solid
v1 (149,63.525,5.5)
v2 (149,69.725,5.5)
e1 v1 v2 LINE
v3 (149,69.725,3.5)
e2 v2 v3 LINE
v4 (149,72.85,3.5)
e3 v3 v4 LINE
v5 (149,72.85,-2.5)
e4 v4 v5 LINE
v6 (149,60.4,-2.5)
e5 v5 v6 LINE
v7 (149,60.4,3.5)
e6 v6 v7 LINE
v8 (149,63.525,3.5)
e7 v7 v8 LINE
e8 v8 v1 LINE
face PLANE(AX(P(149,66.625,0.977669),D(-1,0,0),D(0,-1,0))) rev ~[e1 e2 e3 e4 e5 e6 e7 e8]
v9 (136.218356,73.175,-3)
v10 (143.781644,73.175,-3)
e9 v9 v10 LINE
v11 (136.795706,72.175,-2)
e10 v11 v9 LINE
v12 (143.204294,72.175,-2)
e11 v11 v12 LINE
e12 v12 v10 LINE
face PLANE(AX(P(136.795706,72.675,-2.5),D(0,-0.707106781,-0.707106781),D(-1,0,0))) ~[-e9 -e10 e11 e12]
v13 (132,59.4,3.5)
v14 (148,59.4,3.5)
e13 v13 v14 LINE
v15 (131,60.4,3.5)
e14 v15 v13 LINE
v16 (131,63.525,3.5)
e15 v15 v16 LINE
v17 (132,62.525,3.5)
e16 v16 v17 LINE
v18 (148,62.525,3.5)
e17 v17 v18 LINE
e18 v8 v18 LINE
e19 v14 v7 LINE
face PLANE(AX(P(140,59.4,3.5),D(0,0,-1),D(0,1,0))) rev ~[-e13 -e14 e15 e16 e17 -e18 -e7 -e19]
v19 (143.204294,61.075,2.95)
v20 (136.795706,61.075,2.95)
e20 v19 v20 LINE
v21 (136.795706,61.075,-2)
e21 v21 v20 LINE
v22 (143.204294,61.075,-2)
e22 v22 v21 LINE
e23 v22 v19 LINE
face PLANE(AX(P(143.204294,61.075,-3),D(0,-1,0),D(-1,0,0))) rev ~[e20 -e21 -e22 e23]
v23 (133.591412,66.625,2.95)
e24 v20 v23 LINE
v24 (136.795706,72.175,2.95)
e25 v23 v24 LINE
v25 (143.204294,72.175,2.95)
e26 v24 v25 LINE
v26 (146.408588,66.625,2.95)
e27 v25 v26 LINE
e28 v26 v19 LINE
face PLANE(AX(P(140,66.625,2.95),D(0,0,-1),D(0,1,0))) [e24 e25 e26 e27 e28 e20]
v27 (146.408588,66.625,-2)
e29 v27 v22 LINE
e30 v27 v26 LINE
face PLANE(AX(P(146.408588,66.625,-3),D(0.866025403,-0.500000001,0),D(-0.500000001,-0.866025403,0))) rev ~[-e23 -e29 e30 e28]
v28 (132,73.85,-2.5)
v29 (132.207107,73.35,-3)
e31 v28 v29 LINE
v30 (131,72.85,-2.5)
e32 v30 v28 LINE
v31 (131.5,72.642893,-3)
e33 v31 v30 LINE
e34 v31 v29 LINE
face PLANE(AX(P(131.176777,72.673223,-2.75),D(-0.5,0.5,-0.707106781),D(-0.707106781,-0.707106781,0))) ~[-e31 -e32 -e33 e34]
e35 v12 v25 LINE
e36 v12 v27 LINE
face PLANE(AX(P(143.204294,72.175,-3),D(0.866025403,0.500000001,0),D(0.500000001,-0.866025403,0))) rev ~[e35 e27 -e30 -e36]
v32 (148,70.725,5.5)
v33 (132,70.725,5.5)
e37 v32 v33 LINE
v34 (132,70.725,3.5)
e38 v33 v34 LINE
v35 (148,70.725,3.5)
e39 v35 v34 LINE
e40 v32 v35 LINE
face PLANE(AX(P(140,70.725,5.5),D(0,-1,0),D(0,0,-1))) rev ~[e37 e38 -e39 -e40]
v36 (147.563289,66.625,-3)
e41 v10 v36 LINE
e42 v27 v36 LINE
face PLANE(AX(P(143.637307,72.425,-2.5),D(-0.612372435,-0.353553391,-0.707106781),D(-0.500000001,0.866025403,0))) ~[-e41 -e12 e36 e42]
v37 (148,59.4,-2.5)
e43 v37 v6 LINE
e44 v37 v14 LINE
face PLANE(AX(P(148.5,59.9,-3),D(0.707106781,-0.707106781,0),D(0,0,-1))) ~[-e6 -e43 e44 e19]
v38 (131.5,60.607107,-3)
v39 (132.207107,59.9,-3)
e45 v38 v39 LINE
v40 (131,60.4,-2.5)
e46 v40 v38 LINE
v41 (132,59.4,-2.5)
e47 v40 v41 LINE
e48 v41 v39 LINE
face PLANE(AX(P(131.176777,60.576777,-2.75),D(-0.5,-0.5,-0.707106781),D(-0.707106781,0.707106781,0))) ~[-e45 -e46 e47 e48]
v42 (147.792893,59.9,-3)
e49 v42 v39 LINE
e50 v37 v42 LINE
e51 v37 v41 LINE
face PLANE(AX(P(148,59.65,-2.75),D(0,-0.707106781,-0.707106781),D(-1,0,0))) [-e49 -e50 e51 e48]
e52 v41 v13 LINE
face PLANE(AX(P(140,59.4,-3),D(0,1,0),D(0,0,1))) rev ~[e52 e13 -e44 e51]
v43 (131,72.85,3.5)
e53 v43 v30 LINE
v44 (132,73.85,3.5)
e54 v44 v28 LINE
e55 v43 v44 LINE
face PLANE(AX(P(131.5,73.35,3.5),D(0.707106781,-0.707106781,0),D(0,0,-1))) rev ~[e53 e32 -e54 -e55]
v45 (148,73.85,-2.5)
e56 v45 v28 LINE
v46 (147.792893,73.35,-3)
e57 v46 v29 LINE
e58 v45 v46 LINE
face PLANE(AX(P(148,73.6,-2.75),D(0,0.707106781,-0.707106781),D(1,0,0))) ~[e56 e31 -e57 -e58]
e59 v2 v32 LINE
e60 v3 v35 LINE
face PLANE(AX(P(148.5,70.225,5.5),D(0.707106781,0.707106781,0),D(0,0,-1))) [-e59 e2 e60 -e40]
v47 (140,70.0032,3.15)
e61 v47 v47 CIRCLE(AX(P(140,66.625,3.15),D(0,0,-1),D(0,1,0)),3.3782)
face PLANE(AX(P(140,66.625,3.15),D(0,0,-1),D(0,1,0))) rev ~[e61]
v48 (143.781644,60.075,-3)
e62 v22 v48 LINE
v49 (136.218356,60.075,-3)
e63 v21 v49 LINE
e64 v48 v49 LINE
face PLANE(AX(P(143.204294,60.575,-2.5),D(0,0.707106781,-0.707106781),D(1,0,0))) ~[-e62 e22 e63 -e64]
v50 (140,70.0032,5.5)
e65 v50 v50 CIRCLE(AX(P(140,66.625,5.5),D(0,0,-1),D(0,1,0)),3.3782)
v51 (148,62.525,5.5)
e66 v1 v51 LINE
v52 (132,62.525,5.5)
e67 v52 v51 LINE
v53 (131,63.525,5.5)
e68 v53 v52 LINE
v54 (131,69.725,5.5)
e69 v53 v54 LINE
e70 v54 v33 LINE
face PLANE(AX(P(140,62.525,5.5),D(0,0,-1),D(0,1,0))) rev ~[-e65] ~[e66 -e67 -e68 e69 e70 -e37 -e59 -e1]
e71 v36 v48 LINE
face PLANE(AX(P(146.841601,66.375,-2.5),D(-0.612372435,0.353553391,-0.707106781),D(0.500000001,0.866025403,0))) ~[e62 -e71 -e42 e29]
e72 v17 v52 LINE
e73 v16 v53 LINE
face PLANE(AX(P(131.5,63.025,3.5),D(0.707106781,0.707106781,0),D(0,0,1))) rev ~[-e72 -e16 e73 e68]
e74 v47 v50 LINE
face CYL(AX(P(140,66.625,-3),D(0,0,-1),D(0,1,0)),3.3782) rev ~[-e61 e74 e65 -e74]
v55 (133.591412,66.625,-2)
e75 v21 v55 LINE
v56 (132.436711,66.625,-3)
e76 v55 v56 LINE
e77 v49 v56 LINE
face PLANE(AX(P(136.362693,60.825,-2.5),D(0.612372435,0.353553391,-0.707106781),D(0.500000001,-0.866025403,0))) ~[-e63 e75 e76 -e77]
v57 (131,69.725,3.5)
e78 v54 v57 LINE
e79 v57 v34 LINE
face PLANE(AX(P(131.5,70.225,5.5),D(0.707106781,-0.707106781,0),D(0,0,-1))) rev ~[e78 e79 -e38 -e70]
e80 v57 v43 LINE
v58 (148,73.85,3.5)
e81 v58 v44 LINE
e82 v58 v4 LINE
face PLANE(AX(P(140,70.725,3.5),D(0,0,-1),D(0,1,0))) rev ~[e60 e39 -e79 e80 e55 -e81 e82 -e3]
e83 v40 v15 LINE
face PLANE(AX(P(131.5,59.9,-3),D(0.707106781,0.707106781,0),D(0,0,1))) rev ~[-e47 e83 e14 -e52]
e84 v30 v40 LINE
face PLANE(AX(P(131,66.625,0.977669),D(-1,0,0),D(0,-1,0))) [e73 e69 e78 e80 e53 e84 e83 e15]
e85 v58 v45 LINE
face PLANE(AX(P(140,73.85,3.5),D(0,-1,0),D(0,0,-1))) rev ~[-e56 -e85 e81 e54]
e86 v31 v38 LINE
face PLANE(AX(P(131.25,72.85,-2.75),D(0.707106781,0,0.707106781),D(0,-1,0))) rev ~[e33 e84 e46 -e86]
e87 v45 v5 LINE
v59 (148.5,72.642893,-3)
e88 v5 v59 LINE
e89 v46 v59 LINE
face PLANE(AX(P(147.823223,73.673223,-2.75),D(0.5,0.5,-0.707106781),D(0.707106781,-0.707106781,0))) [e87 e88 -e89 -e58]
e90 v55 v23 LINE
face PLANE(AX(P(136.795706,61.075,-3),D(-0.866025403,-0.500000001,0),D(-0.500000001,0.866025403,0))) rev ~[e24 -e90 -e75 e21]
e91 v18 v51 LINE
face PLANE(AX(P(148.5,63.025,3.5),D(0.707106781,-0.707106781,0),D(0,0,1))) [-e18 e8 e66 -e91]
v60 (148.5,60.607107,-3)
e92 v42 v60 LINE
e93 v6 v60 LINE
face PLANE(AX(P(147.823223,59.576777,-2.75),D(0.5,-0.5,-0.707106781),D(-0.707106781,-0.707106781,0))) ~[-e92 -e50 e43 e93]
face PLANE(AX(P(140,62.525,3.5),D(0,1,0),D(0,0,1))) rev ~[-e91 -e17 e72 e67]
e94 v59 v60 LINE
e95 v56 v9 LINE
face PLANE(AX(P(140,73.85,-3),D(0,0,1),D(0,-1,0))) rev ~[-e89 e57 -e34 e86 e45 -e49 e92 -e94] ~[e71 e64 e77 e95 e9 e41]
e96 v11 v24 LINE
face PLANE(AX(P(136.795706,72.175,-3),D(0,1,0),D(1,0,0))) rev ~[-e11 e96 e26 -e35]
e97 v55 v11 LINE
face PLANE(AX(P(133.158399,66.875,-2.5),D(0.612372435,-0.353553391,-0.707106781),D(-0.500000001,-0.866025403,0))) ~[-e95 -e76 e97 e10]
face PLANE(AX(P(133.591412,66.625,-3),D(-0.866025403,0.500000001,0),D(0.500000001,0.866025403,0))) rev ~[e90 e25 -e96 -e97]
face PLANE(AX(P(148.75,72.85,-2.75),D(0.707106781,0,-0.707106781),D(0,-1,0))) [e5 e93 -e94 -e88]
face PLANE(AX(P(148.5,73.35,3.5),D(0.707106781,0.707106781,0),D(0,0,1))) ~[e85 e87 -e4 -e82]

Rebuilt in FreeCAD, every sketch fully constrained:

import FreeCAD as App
import Part
import Sketcher
Q = App.Units.Quantity


def edges_at(feature, points):
    """Names of the edges that pass closest to the given points."""
    edges = feature.Shape.Edges
    near = lambda p: min(range(len(edges)), key=lambda i: edges[i].distToShape(Part.Vertex(*p))[0])
    return sorted({f"Edge{near(p) + 1}" for p in points})

doc = App.newDocument("Part")
body = doc.addObject("PartDesign::Body", "Body")

sketch1 = body.newObject("Sketcher::SketchObject", "Sketch")
sketch1.AttachmentSupport = (doc.getObject("YZ_Plane"), [""])
sketch1.MapMode = "FlatFace"
sketch1.AttachmentOffset = App.Placement(App.Vector(0, 0, 140), App.Rotation())
sketch1.addGeometry(Part.LineSegment(App.Vector(70.7, 5.5, 0), App.Vector(62.5, 5.5, 0)), False)
sketch1.addGeometry(Part.LineSegment(App.Vector(62.5, 5.5, 0), App.Vector(62.5, 3.5, 0)), False)
sketch1.addGeometry(Part.LineSegment(App.Vector(62.5, 3.5, 0), App.Vector(59.4, 3.5, 0)), False)
sketch1.addGeometry(Part.LineSegment(App.Vector(59.4, 3.5, 0), App.Vector(59.4, -3, 0)), False)
sketch1.addGeometry(Part.LineSegment(App.Vector(59.4, -3, 0), App.Vector(73.8, -3, 0)), False)
sketch1.addGeometry(Part.LineSegment(App.Vector(73.8, -3, 0), App.Vector(73.8, 3.5, 0)), False)
sketch1.addGeometry(Part.LineSegment(App.Vector(73.8, 3.5, 0), App.Vector(70.7, 3.5, 0)), False)
sketch1.addGeometry(Part.LineSegment(App.Vector(70.7, 3.5, 0), App.Vector(70.7, 5.5, 0)), False)
sketch1.addConstraint(Sketcher.Constraint("Coincident", 0, 2, 1, 1))
sketch1.addConstraint(Sketcher.Constraint("Coincident", 1, 2, 2, 1))
sketch1.addConstraint(Sketcher.Constraint("Coincident", 2, 2, 3, 1))
sketch1.addConstraint(Sketcher.Constraint("Coincident", 3, 2, 4, 1))
sketch1.addConstraint(Sketcher.Constraint("Coincident", 4, 2, 5, 1))
sketch1.addConstraint(Sketcher.Constraint("Coincident", 5, 2, 6, 1))
sketch1.addConstraint(Sketcher.Constraint("Coincident", 6, 2, 7, 1))
sketch1.addConstraint(Sketcher.Constraint("Coincident", 7, 2, 0, 1))
sketch1.addConstraint(Sketcher.Constraint("Horizontal", 0))
sketch1.addConstraint(Sketcher.Constraint("Vertical", 1))
sketch1.addConstraint(Sketcher.Constraint("Horizontal", 2))
sketch1.addConstraint(Sketcher.Constraint("Vertical", 3))
sketch1.addConstraint(Sketcher.Constraint("Horizontal", 4))
sketch1.addConstraint(Sketcher.Constraint("Vertical", 5))
sketch1.addConstraint(Sketcher.Constraint("Horizontal", 6))
sketch1.addConstraint(Sketcher.Constraint("Vertical", 7))
sketch1.addConstraint(Sketcher.Constraint("Horizontal", 2, 2, 5, 2))
sketch1.addConstraint(Sketcher.Constraint("Equal", 2, 6))
sketch1.addConstraint(Sketcher.Constraint("DistanceY", 1, 2, 1, 1, Q("2 mm")))
sketch1.addConstraint(Sketcher.Constraint("DistanceX", 0, 2, 0, 1, Q("8.2 mm")))
sketch1.addConstraint(Sketcher.Constraint("DistanceY", 3, 2, 3, 1, Q("6.5 mm")))
sketch1.addConstraint(Sketcher.Constraint("DistanceY", 3, 2, -1, 1, Q("3 mm")))
sketch1.addConstraint(Sketcher.Constraint("DistanceX", 4, 1, 4, 2, Q("14.45 mm")))
sketch1.addConstraint(Sketcher.Constraint("DistanceX", -1, 1, 2, 2, Q("59.4 mm")))
pad1 = body.newObject("PartDesign::Pad", "Pad")
pad1.Profile = sketch1
pad1.Length = 18
pad1.Midplane = True

sketch2 = body.newObject("Sketcher::SketchObject", "Sketch001")
sketch2.AttachmentSupport = (doc.getObject("XY_Plane"), [""])
sketch2.MapMode = "FlatFace"
sketch2.AttachmentOffset = App.Placement(App.Vector(0, 0, -3), App.Rotation())
sketch2.addGeometry(Part.Circle(App.Vector(140, 66.6, 0), App.Vector(0, 0, 1), 3.4), False)
sketch2.addConstraint(Sketcher.Constraint("DistanceX", -1, 1, 0, 3, Q("140 mm")))
sketch2.addConstraint(Sketcher.Constraint("Diameter", 0, Q("6.7564 mm")))
sketch2.addConstraint(Sketcher.Constraint("DistanceY", -1, 1, 0, 3, Q("66.625 mm")))
pocket1 = body.newObject("PartDesign::Pocket", "Pocket")
pocket1.Profile = sketch2
pocket1.Type = "ThroughAll"
pocket1.Reversed = True

sketch3 = body.newObject("Sketcher::SketchObject", "Sketch002")
sketch3.AttachmentSupport = (doc.getObject("XY_Plane"), [""])
sketch3.MapMode = "FlatFace"
sketch3.AttachmentOffset = App.Placement(App.Vector(0, 0, -3), App.Rotation())
sketch3.addGeometry(Part.LineSegment(App.Vector(143, 72, 0), App.Vector(146, 67, 0)), False)
sketch3.addGeometry(Part.LineSegment(App.Vector(146, 67, 0), App.Vector(143, 61, 0)), False)
sketch3.addGeometry(Part.LineSegment(App.Vector(143, 61, 0), App.Vector(137, 61, 0)), False)
sketch3.addGeometry(Part.LineSegment(App.Vector(137, 61, 0), App.Vector(134, 67, 0)), False)
sketch3.addGeometry(Part.LineSegment(App.Vector(134, 67, 0), App.Vector(137, 72, 0)), False)
sketch3.addGeometry(Part.LineSegment(App.Vector(137, 72, 0), App.Vector(143, 72, 0)), False)
sketch3.addConstraint(Sketcher.Constraint("Coincident", 0, 2, 1, 1))
sketch3.addConstraint(Sketcher.Constraint("Coincident", 1, 2, 2, 1))
sketch3.addConstraint(Sketcher.Constraint("Coincident", 2, 2, 3, 1))
sketch3.addConstraint(Sketcher.Constraint("Coincident", 3, 2, 4, 1))
sketch3.addConstraint(Sketcher.Constraint("Coincident", 4, 2, 5, 1))
sketch3.addConstraint(Sketcher.Constraint("Coincident", 5, 2, 0, 1))
sketch3.addConstraint(Sketcher.Constraint("Horizontal", 2))
sketch3.addConstraint(Sketcher.Constraint("Horizontal", 5))
sketch3.addConstraint(Sketcher.Constraint("Parallel", 0, 3))
sketch3.addConstraint(Sketcher.Constraint("Parallel", 1, 4))
sketch3.addConstraint(Sketcher.Constraint("Horizontal", 0, 2, 3, 2))
sketch3.addConstraint(Sketcher.Constraint("Vertical", 2, 2, 4, 2))
sketch3.addConstraint(Sketcher.Constraint("Vertical", 1, 2, 5, 2))
sketch3.addConstraint(Sketcher.Constraint("Angle", 0, Q("-60 deg")))
sketch3.addConstraint(Sketcher.Constraint("DistanceY", 2, 2, 4, 2, Q("11.1 mm")))
sketch3.addConstraint(Sketcher.Constraint("DistanceY", -1, 1, 0, 2, Q("66.625 mm")))
sketch3.addConstraint(Sketcher.Constraint("DistanceX", 2, 2, 2, 1, Q("6.408588 mm")))
sketch3.addConstraint(Sketcher.Constraint("DistanceX", -1, 1, 0, 2, Q("146.408588 mm")))
pocket2 = body.newObject("PartDesign::Pocket", "Pocket001")
pocket2.Profile = sketch3
pocket2.Length = 5.95
pocket2.Reversed = True

sketch4 = body.newObject("Sketcher::SketchObject", "Sketch003")
sketch4.AttachmentSupport = (doc.getObject("XY_Plane"), [""])
sketch4.MapMode = "FlatFace"
sketch4.AttachmentOffset = App.Placement(App.Vector(0, 0, 2.95), App.Rotation())
sketch4.addGeometry(Part.Circle(App.Vector(140, 66.6, 0), App.Vector(0, 0, 1), 3.4), False)
sketch4.addConstraint(Sketcher.Constraint("DistanceX", -1, 1, 0, 3, Q("140 mm")))
sketch4.addConstraint(Sketcher.Constraint("Diameter", 0, Q("6.7564 mm")))
sketch4.addConstraint(Sketcher.Constraint("DistanceY", -1, 1, 0, 3, Q("66.625 mm")))
pad2 = body.newObject("PartDesign::Pad", "Pad001")
pad2.Profile = sketch4
pad2.Length = 0.2
doc.recompute()

chamfer = body.newObject("PartDesign::Chamfer", "Chamfer")
chamfer.Base = (pad2, edges_at(pad2, [
    (144.806, 69.4, -3),
    (144.806, 63.85, -3),
    (140, 61.075, -3),
    (135.194, 63.85, -3),
    (135.194, 69.4, -3),
    (140, 72.175, -3),
]))
chamfer.Size = 1
doc.recompute()

chamfer2 = body.newObject("PartDesign::Chamfer", "Chamfer001")
chamfer2.Base = (chamfer, edges_at(chamfer, [
    (149, 59.4, 0.25),
    (149, 73.85, 0.25),
    (131, 73.85, 0.25),
    (131, 59.4, 0.25),
]))
chamfer2.Size = 1
doc.recompute()

chamfer3 = body.newObject("PartDesign::Chamfer", "Chamfer002")
chamfer3.Base = (chamfer2, edges_at(chamfer2, [
    (131, 62.525, 4.5),
    (131, 70.725, 4.5),
    (149, 62.525, 4.5),
    (149, 70.725, 4.5),
]))
chamfer3.Size = 1
doc.recompute()

chamfer4 = body.newObject("PartDesign::Chamfer", "Chamfer003")
chamfer4.Base = (chamfer3, edges_at(chamfer3, [
    (140, 59.4, -3),
    (148.5, 59.9, -3),
    (149, 66.625, -3),
    (148.5, 73.35, -3),
    (140, 73.85, -3),
    (131.5, 73.35, -3),
    (131, 66.625, -3),
    (131.5, 59.9, -3),
]))
chamfer4.Size = 0.5

doc.recompute()
